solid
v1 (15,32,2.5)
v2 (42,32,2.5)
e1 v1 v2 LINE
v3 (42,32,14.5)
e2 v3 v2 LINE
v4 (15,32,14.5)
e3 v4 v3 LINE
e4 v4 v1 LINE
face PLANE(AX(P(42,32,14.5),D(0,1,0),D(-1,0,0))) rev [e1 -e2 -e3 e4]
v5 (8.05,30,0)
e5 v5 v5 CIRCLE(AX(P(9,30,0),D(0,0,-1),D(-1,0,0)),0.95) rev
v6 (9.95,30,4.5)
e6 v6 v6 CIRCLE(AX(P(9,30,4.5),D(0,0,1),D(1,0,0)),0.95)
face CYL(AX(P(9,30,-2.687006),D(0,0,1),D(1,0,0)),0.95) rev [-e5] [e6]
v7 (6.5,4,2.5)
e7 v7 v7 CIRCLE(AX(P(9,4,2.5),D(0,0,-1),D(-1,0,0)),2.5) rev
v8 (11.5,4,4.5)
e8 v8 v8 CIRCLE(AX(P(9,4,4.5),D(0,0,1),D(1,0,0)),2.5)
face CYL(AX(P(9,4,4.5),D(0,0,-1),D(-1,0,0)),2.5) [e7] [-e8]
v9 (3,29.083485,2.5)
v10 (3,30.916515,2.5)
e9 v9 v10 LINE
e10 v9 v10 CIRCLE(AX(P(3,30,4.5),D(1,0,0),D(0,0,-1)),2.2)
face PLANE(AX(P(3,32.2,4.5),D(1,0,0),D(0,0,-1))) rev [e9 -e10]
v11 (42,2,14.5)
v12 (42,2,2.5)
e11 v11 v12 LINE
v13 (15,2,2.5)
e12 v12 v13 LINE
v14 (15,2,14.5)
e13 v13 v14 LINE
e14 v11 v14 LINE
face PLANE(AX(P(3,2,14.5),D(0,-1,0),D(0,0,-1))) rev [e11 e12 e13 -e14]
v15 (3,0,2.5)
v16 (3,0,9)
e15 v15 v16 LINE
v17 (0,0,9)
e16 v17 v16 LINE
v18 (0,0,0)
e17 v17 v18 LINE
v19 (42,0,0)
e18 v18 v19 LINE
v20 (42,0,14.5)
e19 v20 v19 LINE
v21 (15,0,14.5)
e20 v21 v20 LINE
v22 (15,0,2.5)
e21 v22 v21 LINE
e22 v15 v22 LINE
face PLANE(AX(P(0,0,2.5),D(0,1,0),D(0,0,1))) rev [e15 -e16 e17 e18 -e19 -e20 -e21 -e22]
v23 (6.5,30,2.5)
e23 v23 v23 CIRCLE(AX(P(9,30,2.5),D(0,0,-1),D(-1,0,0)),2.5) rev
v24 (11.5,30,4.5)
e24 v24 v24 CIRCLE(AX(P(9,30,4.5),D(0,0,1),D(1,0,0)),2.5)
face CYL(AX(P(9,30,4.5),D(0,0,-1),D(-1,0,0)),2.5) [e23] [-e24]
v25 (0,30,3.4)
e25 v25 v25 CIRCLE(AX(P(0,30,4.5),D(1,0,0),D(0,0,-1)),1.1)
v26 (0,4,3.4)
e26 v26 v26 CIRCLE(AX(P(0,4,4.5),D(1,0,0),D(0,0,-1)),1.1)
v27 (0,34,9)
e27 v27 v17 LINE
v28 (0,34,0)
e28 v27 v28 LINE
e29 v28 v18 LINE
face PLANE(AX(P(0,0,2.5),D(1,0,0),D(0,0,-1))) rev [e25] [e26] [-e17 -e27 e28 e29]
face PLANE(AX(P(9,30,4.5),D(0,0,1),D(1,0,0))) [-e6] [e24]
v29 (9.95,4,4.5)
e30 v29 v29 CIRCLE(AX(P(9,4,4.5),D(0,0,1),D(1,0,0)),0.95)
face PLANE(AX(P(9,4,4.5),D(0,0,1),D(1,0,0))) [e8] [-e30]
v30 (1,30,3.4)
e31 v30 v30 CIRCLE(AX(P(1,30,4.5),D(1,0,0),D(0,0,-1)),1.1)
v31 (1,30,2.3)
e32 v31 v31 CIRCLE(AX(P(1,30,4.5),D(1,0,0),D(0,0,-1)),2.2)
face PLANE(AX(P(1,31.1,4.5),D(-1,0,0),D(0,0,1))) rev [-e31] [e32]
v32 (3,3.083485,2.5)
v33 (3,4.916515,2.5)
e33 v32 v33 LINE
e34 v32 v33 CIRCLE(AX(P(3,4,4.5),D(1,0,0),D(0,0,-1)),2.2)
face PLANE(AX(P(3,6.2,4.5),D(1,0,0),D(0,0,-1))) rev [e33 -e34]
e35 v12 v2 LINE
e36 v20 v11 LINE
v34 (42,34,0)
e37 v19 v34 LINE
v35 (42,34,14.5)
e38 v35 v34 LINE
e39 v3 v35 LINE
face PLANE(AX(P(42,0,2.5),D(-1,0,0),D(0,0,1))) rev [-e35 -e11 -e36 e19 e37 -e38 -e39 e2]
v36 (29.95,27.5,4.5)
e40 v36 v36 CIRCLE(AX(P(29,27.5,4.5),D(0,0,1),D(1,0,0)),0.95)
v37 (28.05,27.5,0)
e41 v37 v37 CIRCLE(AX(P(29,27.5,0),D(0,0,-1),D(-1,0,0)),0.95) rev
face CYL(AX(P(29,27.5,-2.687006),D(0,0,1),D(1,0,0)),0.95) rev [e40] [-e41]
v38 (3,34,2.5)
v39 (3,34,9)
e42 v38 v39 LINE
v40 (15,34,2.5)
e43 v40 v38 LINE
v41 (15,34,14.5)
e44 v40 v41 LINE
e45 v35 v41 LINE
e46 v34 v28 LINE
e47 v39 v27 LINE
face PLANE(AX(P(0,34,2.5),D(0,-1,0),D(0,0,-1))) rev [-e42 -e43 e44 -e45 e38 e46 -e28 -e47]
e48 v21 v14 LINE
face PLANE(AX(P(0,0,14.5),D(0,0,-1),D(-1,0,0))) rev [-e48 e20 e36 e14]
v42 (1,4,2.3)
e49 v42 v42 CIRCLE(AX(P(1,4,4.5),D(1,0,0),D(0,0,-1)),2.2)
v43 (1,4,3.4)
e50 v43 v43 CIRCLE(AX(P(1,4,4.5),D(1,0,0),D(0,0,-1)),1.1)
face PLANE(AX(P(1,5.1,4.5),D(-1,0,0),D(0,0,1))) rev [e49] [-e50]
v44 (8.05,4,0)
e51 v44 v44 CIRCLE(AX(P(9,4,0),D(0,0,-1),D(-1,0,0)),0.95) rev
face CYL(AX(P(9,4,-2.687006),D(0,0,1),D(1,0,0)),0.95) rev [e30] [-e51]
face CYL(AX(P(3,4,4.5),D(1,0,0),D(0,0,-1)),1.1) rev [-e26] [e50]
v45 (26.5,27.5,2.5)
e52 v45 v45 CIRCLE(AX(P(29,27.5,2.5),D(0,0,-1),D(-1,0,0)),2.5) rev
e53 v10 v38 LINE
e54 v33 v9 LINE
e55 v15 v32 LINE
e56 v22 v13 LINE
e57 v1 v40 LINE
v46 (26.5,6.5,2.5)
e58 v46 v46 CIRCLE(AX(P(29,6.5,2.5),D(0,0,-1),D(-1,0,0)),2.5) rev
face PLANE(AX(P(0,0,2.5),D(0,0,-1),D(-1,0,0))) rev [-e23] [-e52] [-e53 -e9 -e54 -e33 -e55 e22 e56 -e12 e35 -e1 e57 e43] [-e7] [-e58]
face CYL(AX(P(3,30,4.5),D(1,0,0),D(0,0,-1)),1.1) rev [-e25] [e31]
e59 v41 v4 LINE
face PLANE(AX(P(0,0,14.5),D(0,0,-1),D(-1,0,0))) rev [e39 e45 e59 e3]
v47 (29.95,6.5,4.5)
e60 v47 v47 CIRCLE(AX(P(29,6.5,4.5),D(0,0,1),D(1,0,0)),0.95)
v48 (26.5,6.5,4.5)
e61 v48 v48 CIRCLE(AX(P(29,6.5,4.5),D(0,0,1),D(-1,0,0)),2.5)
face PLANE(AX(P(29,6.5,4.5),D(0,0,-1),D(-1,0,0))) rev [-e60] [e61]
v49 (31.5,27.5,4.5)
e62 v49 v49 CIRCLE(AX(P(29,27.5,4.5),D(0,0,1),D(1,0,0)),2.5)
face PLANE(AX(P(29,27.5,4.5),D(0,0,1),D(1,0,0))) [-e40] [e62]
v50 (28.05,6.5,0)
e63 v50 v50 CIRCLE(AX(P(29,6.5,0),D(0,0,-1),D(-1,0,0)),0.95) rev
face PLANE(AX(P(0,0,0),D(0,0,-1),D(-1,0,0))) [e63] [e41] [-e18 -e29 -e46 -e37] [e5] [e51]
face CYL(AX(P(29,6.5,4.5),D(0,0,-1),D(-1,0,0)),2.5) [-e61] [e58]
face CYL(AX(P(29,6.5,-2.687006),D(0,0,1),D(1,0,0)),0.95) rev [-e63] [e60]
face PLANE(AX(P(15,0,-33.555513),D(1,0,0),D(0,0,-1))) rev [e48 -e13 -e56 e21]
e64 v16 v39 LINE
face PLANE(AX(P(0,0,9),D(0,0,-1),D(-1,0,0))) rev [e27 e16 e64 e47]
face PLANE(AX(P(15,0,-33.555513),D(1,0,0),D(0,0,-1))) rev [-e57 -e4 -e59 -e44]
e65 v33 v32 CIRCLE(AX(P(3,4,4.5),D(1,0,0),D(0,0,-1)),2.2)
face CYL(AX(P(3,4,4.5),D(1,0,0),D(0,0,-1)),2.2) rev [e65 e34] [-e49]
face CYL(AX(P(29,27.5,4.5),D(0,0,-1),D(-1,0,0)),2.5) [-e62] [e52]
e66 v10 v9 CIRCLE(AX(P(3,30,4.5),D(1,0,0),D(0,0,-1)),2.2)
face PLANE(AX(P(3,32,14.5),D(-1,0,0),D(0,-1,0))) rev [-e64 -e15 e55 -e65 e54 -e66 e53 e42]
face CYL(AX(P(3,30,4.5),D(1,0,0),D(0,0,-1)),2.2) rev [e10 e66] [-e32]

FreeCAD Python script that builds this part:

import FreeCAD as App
import Part
import Sketcher
from FreeCAD import Vector

doc = App.newDocument("Part")
params = doc.addObject("Spreadsheet::Sheet", "Params")
for row, (alias, value) in enumerate([
    ("sketch1_width", "42 mm"),
    ("sketch1_height", "34 mm"),
    ("pad1_length", "2.5 mm"),
    ("sketch2_width", "42 mm"),
    ("sketch2_width2", "39 mm"),
    ("sketch2_height", "34 mm"),
    ("sketch2_height2", "2 mm"),
    ("pad2_length", "12 mm"),
    ("sketch3_width", "12 mm"),
    ("sketch3_height", "34 mm"),
    ("pocket1_length", "12 mm"),
    ("sketch4_width", "3 mm"),
    ("sketch4_width2", "2 mm"),
    ("sketch4_height", "2.2 mm"),
    ("groove_angle", "360 deg"),
    ("linearpattern_pitch", "26 mm"),
    ("sketch5_width", "3 mm"),
    ("sketch5_height", "34 mm"),
    ("pocket2_length", "5.5 mm"),
    ("sketch6_diameter", "5 mm"),
    ("pad3_length", "2 mm"),
    ("sketch7_diameter", "1.9 mm"),
    ("pocket3_length", "4.5 mm"),
], start=1):
    params.set(f"A{row}", alias)
    params.set(f"B{row}", "=" + value)
    params.setAlias(f"B{row}", alias)

body = doc.addObject("PartDesign::Body", "Body")

sketch1 = doc.addObject("Sketcher::SketchObject", "Sketch")
body.addObject(sketch1)
sketch1.AttachmentSupport = (doc.XY_Plane, [""])
sketch1.MapMode = "FlatFace"
sketch1.addGeometry([
    Part.LineSegment(Vector(0, 34, 0), Vector(0, 0, 0)),
    Part.LineSegment(Vector(0, 0, 0), Vector(42, 0, 0)),
    Part.LineSegment(Vector(42, 0, 0), Vector(42, 34, 0)),
    Part.LineSegment(Vector(42, 34, 0), Vector(0, 34, 0)),
], False)
sketch1.addConstraint([
    Sketcher.Constraint("Coincident", 0, 2, 1, 1),
    Sketcher.Constraint("Coincident", 1, 2, 2, 1),
    Sketcher.Constraint("Coincident", 2, 2, 3, 1),
    Sketcher.Constraint("Coincident", 3, 2, 0, 1),
    Sketcher.Constraint("Vertical", 0),
    Sketcher.Constraint("Horizontal", 1),
    Sketcher.Constraint("Vertical", 2),
    Sketcher.Constraint("Horizontal", 3),
    Sketcher.Constraint("Coincident", 0, 2, -1, 1),
    Sketcher.Constraint("DistanceX", 1, 1, 1, 2, 42.0),
    Sketcher.Constraint("DistanceY", 0, 2, 0, 1, 34.0),
])
sketch1.setExpression("Constraints[9]", "Params.sketch1_width")
sketch1.setExpression("Constraints[10]", "Params.sketch1_height")
pad1 = doc.addObject("PartDesign::Pad", "Pad")
body.addObject(pad1)
pad1.Profile = sketch1
pad1.setExpression("Length", "Params.pad1_length")

sketch2 = doc.addObject("Sketcher::SketchObject", "Sketch001")
body.addObject(sketch2)
sketch2.AttachmentSupport = (doc.XY_Plane, [""])
sketch2.MapMode = "FlatFace"
sketch2.AttachmentOffset = App.Placement(Vector(0, 0, 2.5), App.Rotation())
sketch2.addGeometry([
    Part.LineSegment(Vector(42, 34, 0), Vector(0, 34, 0)),
    Part.LineSegment(Vector(0, 34, 0), Vector(0, 0, 0)),
    Part.LineSegment(Vector(0, 0, 0), Vector(42, 0, 0)),
    Part.LineSegment(Vector(42, 0, 0), Vector(42, 2, 0)),
    Part.LineSegment(Vector(42, 2, 0), Vector(3, 2, 0)),
    Part.LineSegment(Vector(3, 2, 0), Vector(3, 32, 0)),
    Part.LineSegment(Vector(3, 32, 0), Vector(42, 32, 0)),
    Part.LineSegment(Vector(42, 32, 0), Vector(42, 34, 0)),
], False)
sketch2.addConstraint([
    Sketcher.Constraint("Coincident", 0, 2, 1, 1),
    Sketcher.Constraint("Coincident", 1, 2, 2, 1),
    Sketcher.Constraint("Coincident", 2, 2, 3, 1),
    Sketcher.Constraint("Coincident", 3, 2, 4, 1),
    Sketcher.Constraint("Coincident", 4, 2, 5, 1),
    Sketcher.Constraint("Coincident", 5, 2, 6, 1),
    Sketcher.Constraint("Coincident", 6, 2, 7, 1),
    Sketcher.Constraint("Coincident", 7, 2, 0, 1),
    Sketcher.Constraint("Horizontal", 0),
    Sketcher.Constraint("Vertical", 1),
    Sketcher.Constraint("Horizontal", 2),
    Sketcher.Constraint("Vertical", 3),
    Sketcher.Constraint("Horizontal", 4),
    Sketcher.Constraint("Vertical", 5),
    Sketcher.Constraint("Horizontal", 6),
    Sketcher.Constraint("Vertical", 7),
    Sketcher.Constraint("Coincident", 1, 2, -1, 1),
    Sketcher.Constraint("Vertical", 3, 2, 6, 2),
    Sketcher.Constraint("Equal", 3, 7),
    Sketcher.Constraint("DistanceX", 0, 2, 0, 1, 42.0),
    Sketcher.Constraint("DistanceX", 4, 2, 4, 1, 39.0),
    Sketcher.Constraint("DistanceY", 1, 2, 1, 1, 34.0),
    Sketcher.Constraint("DistanceY", 3, 1, 3, 2, 2.0),
])
sketch2.setExpression("Constraints[19]", "Params.sketch2_width")
sketch2.setExpression("Constraints[20]", "Params.sketch2_width2")
sketch2.setExpression("Constraints[21]", "Params.sketch2_height")
sketch2.setExpression("Constraints[22]", "Params.sketch2_height2")
pad2 = doc.addObject("PartDesign::Pad", "Pad001")
body.addObject(pad2)
pad2.Profile = sketch2
pad2.setExpression("Length", "Params.pad2_length")

sketch3 = doc.addObject("Sketcher::SketchObject", "Sketch002")
body.addObject(sketch3)
sketch3.AttachmentSupport = (doc.XY_Plane, [""])
sketch3.MapMode = "FlatFace"
sketch3.AttachmentOffset = App.Placement(Vector(0, 0, 14.5), App.Rotation())
sketch3.addGeometry([
    Part.LineSegment(Vector(3, 34, 0), Vector(3, 0, 0)),
    Part.LineSegment(Vector(3, 0, 0), Vector(15, 0, 0)),
    Part.LineSegment(Vector(15, 0, 0), Vector(15, 34, 0)),
    Part.LineSegment(Vector(15, 34, 0), Vector(3, 34, 0)),
], False)
sketch3.addConstraint([
    Sketcher.Constraint("Coincident", 0, 2, 1, 1),
    Sketcher.Constraint("Coincident", 1, 2, 2, 1),
    Sketcher.Constraint("Coincident", 2, 2, 3, 1),
    Sketcher.Constraint("Coincident", 3, 2, 0, 1),
    Sketcher.Constraint("Vertical", 0),
    Sketcher.Constraint("Horizontal", 1),
    Sketcher.Constraint("Vertical", 2),
    Sketcher.Constraint("Horizontal", 3),
    Sketcher.Constraint("PointOnObject", 0, 2, -1),
    Sketcher.Constraint("DistanceX", 1, 1, 1, 2, 12.0),
    Sketcher.Constraint("DistanceY", 0, 2, 0, 1, 34.0),
    Sketcher.Constraint("DistanceX", -1, 1, 0, 2, 3.0),
])
sketch3.setExpression("Constraints[9]", "Params.sketch3_width")
sketch3.setExpression("Constraints[10]", "Params.sketch3_height")
pocket1 = doc.addObject("PartDesign::Pocket", "Pocket")
body.addObject(pocket1)
pocket1.Profile = sketch3
pocket1.setExpression("Length", "Params.pocket1_length")

sketch4 = doc.addObject("Sketcher::SketchObject", "Sketch003")
body.addObject(sketch4)
sketch4.AttachmentSupport = (doc.XZ_Plane, [""])
sketch4.MapMode = "FlatFace"
sketch4.AttachmentOffset = App.Placement(Vector(0, 0, -4), App.Rotation())
sketch4.addGeometry([
    Part.LineSegment(Vector(0, 4.5, 0), Vector(3, 4.5, 0)),
    Part.LineSegment(Vector(3, 4.5, 0), Vector(3, 2.3, 0)),
    Part.LineSegment(Vector(3, 2.3, 0), Vector(1, 2.3, 0)),
    Part.LineSegment(Vector(1, 2.3, 0), Vector(1, 3.4, 0)),
    Part.LineSegment(Vector(1, 3.4, 0), Vector(0, 3.4, 0)),
    Part.LineSegment(Vector(0, 3.4, 0), Vector(0, 4.5, 0)),
], False)
sketch4.addGeometry(Part.LineSegment(Vector(3, 4.5, 0), Vector(0, 4.5, 0)), True)
sketch4.addConstraint([
    Sketcher.Constraint("Coincident", 0, 2, 1, 1),
    Sketcher.Constraint("Coincident", 1, 2, 2, 1),
    Sketcher.Constraint("Coincident", 2, 2, 3, 1),
    Sketcher.Constraint("Coincident", 3, 2, 4, 1),
    Sketcher.Constraint("Coincident", 4, 2, 5, 1),
    Sketcher.Constraint("Coincident", 5, 2, 0, 1),
    Sketcher.Constraint("Horizontal", 0),
    Sketcher.Constraint("Vertical", 1),
    Sketcher.Constraint("Horizontal", 2),
    Sketcher.Constraint("Vertical", 3),
    Sketcher.Constraint("Horizontal", 4),
    Sketcher.Constraint("Vertical", 5),
    Sketcher.Constraint("Horizontal", 6),
    Sketcher.Constraint("Coincident", 6, 1, 0, 2),
    Sketcher.Constraint("PointOnObject", 4, 2, -2),
    Sketcher.Constraint("PointOnObject", 6, 2, -2),
    Sketcher.Constraint("Equal", 3, 5),
    Sketcher.Constraint("DistanceX", 0, 1, 0, 2, 3.0),
    Sketcher.Constraint("DistanceX", 2, 2, 2, 1, 2.0),
    Sketcher.Constraint("DistanceY", 1, 2, 1, 1, 2.2),
    Sketcher.Constraint("DistanceY", -1, 1, 0, 2, 4.5),
])
sketch4.setExpression("Constraints[17]", "Params.sketch4_width")
sketch4.setExpression("Constraints[18]", "Params.sketch4_width2")
sketch4.setExpression("Constraints[19]", "Params.sketch4_height")
groove = doc.addObject("PartDesign::Groove", "Groove")
body.addObject(groove)
groove.Profile = sketch4
groove.ReferenceAxis = (sketch4, ["Axis0"])
groove.setExpression("Angle", "Params.groove_angle")
doc.recompute()

linearpattern = doc.addObject("PartDesign::LinearPattern", "LinearPattern")
body.addObject(linearpattern)
linearpattern.Originals = [groove]
linearpattern.Direction = (doc.Y_Axis, [""])
linearpattern.Mode = "offset"
linearpattern.setExpression("Offset", "Params.linearpattern_pitch")
linearpattern.Occurrences = 2
body.Tip = linearpattern

sketch5 = doc.addObject("Sketcher::SketchObject", "Sketch004")
body.addObject(sketch5)
sketch5.AttachmentSupport = (doc.XY_Plane, [""])
sketch5.MapMode = "FlatFace"
sketch5.AttachmentOffset = App.Placement(Vector(0, 0, 14.5), App.Rotation())
sketch5.addGeometry([
    Part.LineSegment(Vector(0, 34, 0), Vector(0, 0, 0)),
    Part.LineSegment(Vector(0, 0, 0), Vector(3, 0, 0)),
    Part.LineSegment(Vector(3, 0, 0), Vector(3, 34, 0)),
    Part.LineSegment(Vector(3, 34, 0), Vector(0, 34, 0)),
], False)
sketch5.addConstraint([
    Sketcher.Constraint("Coincident", 0, 2, 1, 1),
    Sketcher.Constraint("Coincident", 1, 2, 2, 1),
    Sketcher.Constraint("Coincident", 2, 2, 3, 1),
    Sketcher.Constraint("Coincident", 3, 2, 0, 1),
    Sketcher.Constraint("Vertical", 0),
    Sketcher.Constraint("Horizontal", 1),
    Sketcher.Constraint("Vertical", 2),
    Sketcher.Constraint("Horizontal", 3),
    Sketcher.Constraint("Coincident", 0, 2, -1, 1),
    Sketcher.Constraint("DistanceX", 1, 1, 1, 2, 3.0),
    Sketcher.Constraint("DistanceY", 0, 2, 0, 1, 34.0),
])
sketch5.setExpression("Constraints[9]", "Params.sketch5_width")
sketch5.setExpression("Constraints[10]", "Params.sketch5_height")
pocket2 = doc.addObject("PartDesign::Pocket", "Pocket001")
body.addObject(pocket2)
pocket2.Profile = sketch5
pocket2.setExpression("Length", "Params.pocket2_length")

sketch6 = doc.addObject("Sketcher::SketchObject", "Sketch005")
body.addObject(sketch6)
sketch6.AttachmentSupport = (doc.XY_Plane, [""])
sketch6.MapMode = "FlatFace"
sketch6.AttachmentOffset = App.Placement(Vector(0, 0, 2.5), App.Rotation())
sketch6.addGeometry([
    Part.Circle(Vector(9, 30, 0), Vector(0, 0, 1), 2.5),
    Part.Circle(Vector(9, 4, 0), Vector(0, 0, 1), 2.5),
    Part.Circle(Vector(29, 27.5, 0), Vector(0, 0, 1), 2.5),
    Part.Circle(Vector(29, 6.5, 0), Vector(0, 0, 1), 2.5),
], False)
sketch6.addConstraint([
    Sketcher.Constraint("Equal", 0, 1),
    Sketcher.Constraint("Equal", 1, 2),
    Sketcher.Constraint("Equal", 2, 3),
    Sketcher.Constraint("Vertical", 0, 3, 1, 3),
    Sketcher.Constraint("Vertical", 2, 3, 3, 3),
    Sketcher.Constraint("Diameter", 0, 5.0),
    Sketcher.Constraint("DistanceX", -1, 1, 0, 3, 9.0),
    Sketcher.Constraint("DistanceY", -1, 1, 0, 3, 30.0),
    Sketcher.Constraint("DistanceY", -1, 1, 1, 3, 4.0),
    Sketcher.Constraint("DistanceX", -1, 1, 2, 3, 29.0),
    Sketcher.Constraint("DistanceY", 3, 3, 2, 3, 21.0),
    Sketcher.Constraint("DistanceY", -1, 1, 2, 3, 27.5),
])
sketch6.setExpression("Constraints[5]", "Params.sketch6_diameter")
pad3 = doc.addObject("PartDesign::Pad", "Pad002")
body.addObject(pad3)
pad3.Profile = sketch6
pad3.setExpression("Length", "Params.pad3_length")

sketch7 = doc.addObject("Sketcher::SketchObject", "Sketch006")
body.addObject(sketch7)
sketch7.AttachmentSupport = (doc.XY_Plane, [""])
sketch7.MapMode = "FlatFace"
sketch7.AttachmentOffset = App.Placement(Vector(0, 0, 4.5), App.Rotation())
sketch7.addGeometry([
    Part.Circle(Vector(9, 30, 0), Vector(0, 0, 1), 0.95),
    Part.Circle(Vector(9, 4, 0), Vector(0, 0, 1), 0.95),
    Part.Circle(Vector(29, 27.5, 0), Vector(0, 0, 1), 0.95),
    Part.Circle(Vector(29, 6.5, 0), Vector(0, 0, 1), 0.95),
], False)
sketch7.addConstraint([
    Sketcher.Constraint("Equal", 0, 1),
    Sketcher.Constraint("Equal", 1, 2),
    Sketcher.Constraint("Equal", 2, 3),
    Sketcher.Constraint("Vertical", 0, 3, 1, 3),
    Sketcher.Constraint("Vertical", 2, 3, 3, 3),
    Sketcher.Constraint("Diameter", 0, 1.9),
    Sketcher.Constraint("DistanceX", -1, 1, 0, 3, 9.0),
    Sketcher.Constraint("DistanceY", -1, 1, 0, 3, 30.0),
    Sketcher.Constraint("DistanceY", -1, 1, 1, 3, 4.0),
    Sketcher.Constraint("DistanceX", -1, 1, 2, 3, 29.0),
    Sketcher.Constraint("DistanceY", 3, 3, 2, 3, 21.0),
    Sketcher.Constraint("DistanceY", -1, 1, 2, 3, 27.5),
])
sketch7.setExpression("Constraints[5]", "Params.sketch7_diameter")
pocket3 = doc.addObject("PartDesign::Pocket", "Pocket002")
body.addObject(pocket3)
pocket3.Profile = sketch7
pocket3.setExpression("Length", "Params.pocket3_length")

doc.recompute()
